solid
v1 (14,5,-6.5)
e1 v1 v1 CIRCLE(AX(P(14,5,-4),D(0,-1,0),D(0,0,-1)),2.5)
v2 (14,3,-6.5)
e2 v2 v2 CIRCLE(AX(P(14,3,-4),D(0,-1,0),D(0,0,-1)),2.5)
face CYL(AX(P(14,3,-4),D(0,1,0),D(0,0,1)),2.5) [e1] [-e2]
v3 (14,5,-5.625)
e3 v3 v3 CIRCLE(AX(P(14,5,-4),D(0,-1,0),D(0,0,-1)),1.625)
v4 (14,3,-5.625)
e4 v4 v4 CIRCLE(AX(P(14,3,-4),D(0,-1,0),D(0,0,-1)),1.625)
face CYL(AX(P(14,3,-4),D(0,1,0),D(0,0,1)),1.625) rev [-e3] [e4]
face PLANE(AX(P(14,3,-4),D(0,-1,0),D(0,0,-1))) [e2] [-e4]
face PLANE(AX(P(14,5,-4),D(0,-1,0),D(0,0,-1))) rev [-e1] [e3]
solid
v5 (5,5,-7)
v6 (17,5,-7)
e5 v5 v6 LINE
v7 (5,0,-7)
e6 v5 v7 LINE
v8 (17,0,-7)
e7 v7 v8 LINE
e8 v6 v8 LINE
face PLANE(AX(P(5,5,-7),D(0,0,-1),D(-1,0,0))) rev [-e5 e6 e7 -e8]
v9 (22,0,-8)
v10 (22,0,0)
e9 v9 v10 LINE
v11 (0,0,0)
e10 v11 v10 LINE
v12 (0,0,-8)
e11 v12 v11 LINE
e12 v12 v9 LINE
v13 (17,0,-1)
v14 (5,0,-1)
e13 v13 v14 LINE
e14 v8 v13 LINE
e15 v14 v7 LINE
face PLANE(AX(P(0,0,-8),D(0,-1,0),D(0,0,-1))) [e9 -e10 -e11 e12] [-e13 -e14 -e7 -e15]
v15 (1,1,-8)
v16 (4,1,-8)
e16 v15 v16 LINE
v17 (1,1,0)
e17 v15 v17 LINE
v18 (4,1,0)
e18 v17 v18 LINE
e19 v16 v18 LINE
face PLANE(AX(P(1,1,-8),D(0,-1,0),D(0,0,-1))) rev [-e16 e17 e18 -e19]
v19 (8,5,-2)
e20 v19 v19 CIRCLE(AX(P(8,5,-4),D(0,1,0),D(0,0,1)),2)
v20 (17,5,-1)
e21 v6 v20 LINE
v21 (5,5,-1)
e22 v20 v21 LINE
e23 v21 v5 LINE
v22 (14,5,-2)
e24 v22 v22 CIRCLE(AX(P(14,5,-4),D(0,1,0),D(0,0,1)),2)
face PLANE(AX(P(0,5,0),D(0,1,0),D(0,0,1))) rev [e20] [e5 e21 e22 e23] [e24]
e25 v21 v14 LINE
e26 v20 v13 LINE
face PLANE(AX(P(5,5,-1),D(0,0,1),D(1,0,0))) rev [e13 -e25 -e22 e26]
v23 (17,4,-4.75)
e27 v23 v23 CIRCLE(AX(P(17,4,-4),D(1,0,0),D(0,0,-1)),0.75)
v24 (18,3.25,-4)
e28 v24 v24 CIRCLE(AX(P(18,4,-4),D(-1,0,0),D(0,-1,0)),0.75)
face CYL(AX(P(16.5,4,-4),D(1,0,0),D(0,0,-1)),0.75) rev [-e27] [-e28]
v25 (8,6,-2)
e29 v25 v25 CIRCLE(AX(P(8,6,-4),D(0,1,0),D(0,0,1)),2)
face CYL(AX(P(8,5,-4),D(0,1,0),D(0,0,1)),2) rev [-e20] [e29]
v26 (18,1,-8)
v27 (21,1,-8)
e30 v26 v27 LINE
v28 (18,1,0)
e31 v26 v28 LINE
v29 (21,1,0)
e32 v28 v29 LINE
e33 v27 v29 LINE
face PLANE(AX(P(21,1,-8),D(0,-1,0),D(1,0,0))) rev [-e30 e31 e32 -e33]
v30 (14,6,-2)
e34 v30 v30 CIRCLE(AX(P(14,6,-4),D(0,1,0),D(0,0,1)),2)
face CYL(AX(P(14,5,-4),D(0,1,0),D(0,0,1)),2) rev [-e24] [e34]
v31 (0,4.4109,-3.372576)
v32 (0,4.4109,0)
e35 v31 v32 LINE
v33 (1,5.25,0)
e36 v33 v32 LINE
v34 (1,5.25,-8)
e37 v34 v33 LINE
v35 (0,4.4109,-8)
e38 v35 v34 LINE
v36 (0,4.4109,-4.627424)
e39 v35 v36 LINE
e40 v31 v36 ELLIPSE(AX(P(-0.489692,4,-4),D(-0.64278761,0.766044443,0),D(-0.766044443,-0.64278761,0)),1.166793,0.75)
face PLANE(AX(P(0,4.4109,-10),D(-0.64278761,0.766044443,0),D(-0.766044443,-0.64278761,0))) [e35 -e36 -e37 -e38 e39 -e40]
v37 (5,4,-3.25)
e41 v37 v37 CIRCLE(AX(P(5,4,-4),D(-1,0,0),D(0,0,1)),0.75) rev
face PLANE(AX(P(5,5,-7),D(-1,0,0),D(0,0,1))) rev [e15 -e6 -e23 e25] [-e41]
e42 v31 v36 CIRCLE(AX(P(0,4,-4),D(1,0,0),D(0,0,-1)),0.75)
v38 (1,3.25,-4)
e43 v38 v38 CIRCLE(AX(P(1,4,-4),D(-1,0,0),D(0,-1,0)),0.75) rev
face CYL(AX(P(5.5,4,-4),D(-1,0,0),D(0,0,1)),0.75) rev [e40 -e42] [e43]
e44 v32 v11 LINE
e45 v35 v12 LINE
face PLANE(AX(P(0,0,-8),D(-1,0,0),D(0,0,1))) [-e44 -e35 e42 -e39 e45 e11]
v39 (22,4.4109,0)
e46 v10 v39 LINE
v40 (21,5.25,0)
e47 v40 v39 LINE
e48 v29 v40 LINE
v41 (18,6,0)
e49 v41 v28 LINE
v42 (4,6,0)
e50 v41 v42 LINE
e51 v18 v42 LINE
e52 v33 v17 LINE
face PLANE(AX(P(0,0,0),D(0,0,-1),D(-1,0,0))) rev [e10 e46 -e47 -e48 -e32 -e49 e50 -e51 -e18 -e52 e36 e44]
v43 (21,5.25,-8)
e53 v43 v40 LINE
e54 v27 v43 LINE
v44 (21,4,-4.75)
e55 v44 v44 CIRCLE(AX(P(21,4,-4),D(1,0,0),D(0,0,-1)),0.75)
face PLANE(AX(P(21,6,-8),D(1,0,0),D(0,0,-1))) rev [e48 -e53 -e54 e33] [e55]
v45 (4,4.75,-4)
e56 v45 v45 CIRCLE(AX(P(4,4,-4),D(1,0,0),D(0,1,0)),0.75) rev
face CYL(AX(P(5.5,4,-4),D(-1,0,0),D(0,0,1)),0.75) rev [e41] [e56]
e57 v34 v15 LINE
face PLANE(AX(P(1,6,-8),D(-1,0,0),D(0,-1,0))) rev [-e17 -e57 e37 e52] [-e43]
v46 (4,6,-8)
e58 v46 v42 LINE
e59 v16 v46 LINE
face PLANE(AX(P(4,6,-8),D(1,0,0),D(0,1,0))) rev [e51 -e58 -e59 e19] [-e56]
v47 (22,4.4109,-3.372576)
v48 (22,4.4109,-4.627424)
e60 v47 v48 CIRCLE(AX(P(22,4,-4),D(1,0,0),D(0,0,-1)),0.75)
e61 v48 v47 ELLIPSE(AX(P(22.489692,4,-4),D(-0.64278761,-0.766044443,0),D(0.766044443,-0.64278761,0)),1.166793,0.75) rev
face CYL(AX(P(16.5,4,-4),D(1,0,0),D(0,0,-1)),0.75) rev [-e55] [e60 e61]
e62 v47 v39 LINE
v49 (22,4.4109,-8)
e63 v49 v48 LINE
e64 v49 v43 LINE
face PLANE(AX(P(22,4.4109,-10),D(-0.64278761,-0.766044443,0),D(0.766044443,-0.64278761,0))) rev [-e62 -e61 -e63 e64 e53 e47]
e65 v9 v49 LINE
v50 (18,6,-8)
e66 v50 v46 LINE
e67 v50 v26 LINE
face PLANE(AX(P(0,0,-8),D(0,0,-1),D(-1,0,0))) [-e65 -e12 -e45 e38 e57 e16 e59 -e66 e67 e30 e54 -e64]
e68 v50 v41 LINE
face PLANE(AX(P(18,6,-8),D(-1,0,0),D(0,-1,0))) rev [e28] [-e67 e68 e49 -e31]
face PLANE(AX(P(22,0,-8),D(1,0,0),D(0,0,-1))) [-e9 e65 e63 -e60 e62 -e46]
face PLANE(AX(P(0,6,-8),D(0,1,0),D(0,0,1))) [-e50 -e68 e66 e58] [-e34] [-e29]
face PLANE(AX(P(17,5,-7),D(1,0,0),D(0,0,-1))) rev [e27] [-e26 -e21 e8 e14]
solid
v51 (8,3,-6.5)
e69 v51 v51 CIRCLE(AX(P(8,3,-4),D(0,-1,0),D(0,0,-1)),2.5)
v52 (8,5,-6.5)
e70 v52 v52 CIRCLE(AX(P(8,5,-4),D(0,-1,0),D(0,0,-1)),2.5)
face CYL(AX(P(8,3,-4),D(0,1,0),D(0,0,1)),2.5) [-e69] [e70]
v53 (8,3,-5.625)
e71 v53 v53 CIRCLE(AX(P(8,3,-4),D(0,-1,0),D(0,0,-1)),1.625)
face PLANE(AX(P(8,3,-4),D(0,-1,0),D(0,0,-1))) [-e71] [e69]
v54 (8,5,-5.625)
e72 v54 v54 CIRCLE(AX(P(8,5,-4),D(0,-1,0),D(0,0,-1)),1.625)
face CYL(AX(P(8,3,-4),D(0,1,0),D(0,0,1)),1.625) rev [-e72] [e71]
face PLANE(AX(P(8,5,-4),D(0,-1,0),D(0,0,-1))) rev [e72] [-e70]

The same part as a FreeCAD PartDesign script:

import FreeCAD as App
import Part
import Sketcher
Q = App.Units.Quantity


def add_polygon(sketch, points):
    """Adds a closed chain of lines whose ends are joined by coincident constraints."""
    first, n = sketch.GeometryCount, len(points)
    for a, b in zip(points, points[1:] + points[:1]):
        sketch.addGeometry(Part.LineSegment(App.Vector(*a, 0), App.Vector(*b, 0)), False)
    for i in range(n):
        sketch.addConstraint(Sketcher.Constraint("Coincident", first + i, 2, first + (i + 1) % n, 1))

doc = App.newDocument("Part")
params = doc.addObject("Spreadsheet::Sheet", "Params")
for row, (alias, value) in enumerate([
    ("sketch1_width", "22 mm"),
    ("sketch1_height", "6 mm"),
    ("pad1_length", "8 mm"),
    ("sketch2_width", "12 mm"),
    ("sketch2_height", "6 mm"),
    ("pocket1_length", "5 mm"),
    ("sketch3_diameter", "4 mm"),
    ("pocket2_length", "1 mm"),
    ("sketch4_width", "3 mm"),
    ("sketch4_height", "5 mm"),
    ("sketch5_diameter", "1.5 mm"),
    ("pocket4_length", "5.5 mm"),
    ("sketch6_width", "1 mm"),
    ("sketch6_height", "0.75 mm"),
    ("pocket5_length", "10 mm"),
    ("sketch7_diameter", "5 mm"),
    ("sketch7_diameter2", "3.25 mm"),
    ("pad2_length", "2 mm"),
    ("sketch8_diameter", "5 mm"),
    ("sketch8_diameter2", "3.25 mm"),
    ("pad3_length", "2 mm"),
], start=1):
    params.set(f"A{row}", alias)
    params.set(f"B{row}", "=" + value)
    params.setAlias(f"B{row}", alias)

body = doc.addObject("PartDesign::Body", "Body")

sketch1 = body.newObject("Sketcher::SketchObject", "Sketch")
sketch1.AttachmentSupport = (doc.getObject("XY_Plane"), [""])
sketch1.MapMode = "FlatFace"
add_polygon(sketch1, [(0, 6), (0, 0), (22, 0), (22, 6)])
sketch1.addConstraint([
    Sketcher.Constraint("Vertical", 0),
    Sketcher.Constraint("Horizontal", 1),
    Sketcher.Constraint("Vertical", 2),
    Sketcher.Constraint("Horizontal", 3),
    Sketcher.Constraint("Coincident", 0, 2, -1, 1),
    Sketcher.Constraint("DistanceX", 1, 1, 1, 2, 22.0),
    Sketcher.Constraint("DistanceY", 0, 2, 0, 1, 6.0),
])
sketch1.setExpression("Constraints[9]", "Params.sketch1_width")
sketch1.setExpression("Constraints[10]", "Params.sketch1_height")
pad1 = body.newObject("PartDesign::Pad", "Pad")
pad1.Profile = sketch1
pad1.setExpression("Length", "Params.pad1_length")
pad1.Reversed = True

sketch2 = body.newObject("Sketcher::SketchObject", "Sketch001")
sketch2.AttachmentSupport = (doc.getObject("XZ_Plane"), [""])
sketch2.MapMode = "FlatFace"
add_polygon(sketch2, [(5, -1), (5, -7), (17, -7), (17, -1)])
sketch2.addConstraint([
    Sketcher.Constraint("Vertical", 0),
    Sketcher.Constraint("Horizontal", 1),
    Sketcher.Constraint("Vertical", 2),
    Sketcher.Constraint("Horizontal", 3),
    Sketcher.Constraint("DistanceX", 1, 1, 1, 2, 12.0),
    Sketcher.Constraint("DistanceY", 0, 2, 0, 1, 6.0),
    Sketcher.Constraint("DistanceX", -1, 1, 0, 2, 5.0),
    Sketcher.Constraint("DistanceY", 0, 2, -1, 1, 7.0),
])
sketch2.setExpression("Constraints[8]", "Params.sketch2_width")
sketch2.setExpression("Constraints[9]", "Params.sketch2_height")
pocket1 = body.newObject("PartDesign::Pocket", "Pocket")
pocket1.Profile = sketch2
pocket1.setExpression("Length", "Params.pocket1_length")

sketch3 = body.newObject("Sketcher::SketchObject", "Sketch002")
sketch3.AttachmentSupport = (doc.getObject("XZ_Plane"), [""])
sketch3.MapMode = "FlatFace"
sketch3.AttachmentOffset = App.Placement(App.Vector(0, 0, -6), App.Rotation())
sketch3.addGeometry([
    Part.Circle(App.Vector(8, -4, 0), App.Vector(0, 0, 1), 2),
    Part.Circle(App.Vector(14, -4, 0), App.Vector(0, 0, 1), 2),
], False)
sketch3.addConstraint([
    Sketcher.Constraint("Equal", 0, 1),
    Sketcher.Constraint("Horizontal", 0, 3, 1, 3),
    Sketcher.Constraint("Diameter", 0, 4.0),
    Sketcher.Constraint("DistanceX", -1, 1, 0, 3, 8.0),
    Sketcher.Constraint("DistanceY", 0, 3, -1, 1, 4.0),
    Sketcher.Constraint("DistanceX", -1, 1, 1, 3, 14.0),
])
sketch3.setExpression("Constraints[2]", "Params.sketch3_diameter")
pocket2 = body.newObject("PartDesign::Pocket", "Pocket001")
pocket2.Profile = sketch3
pocket2.setExpression("Length", "Params.pocket2_length")
pocket2.Reversed = True

sketch4 = body.newObject("Sketcher::SketchObject", "Sketch003")
sketch4.AttachmentSupport = (doc.getObject("XY_Plane"), [""])
sketch4.MapMode = "FlatFace"
add_polygon(sketch4, [(1, 6), (1, 1), (4, 1), (4, 6)])
add_polygon(sketch4, [(18, 6), (18, 1), (21, 1), (21, 6)])
sketch4.addConstraint([
    Sketcher.Constraint("Vertical", 0),
    Sketcher.Constraint("Horizontal", 1),
    Sketcher.Constraint("Vertical", 2),
    Sketcher.Constraint("Horizontal", 3),
    Sketcher.Constraint("Vertical", 4),
    Sketcher.Constraint("Horizontal", 5),
    Sketcher.Constraint("Vertical", 6),
    Sketcher.Constraint("Horizontal", 7),
    Sketcher.Constraint("Horizontal", 1, 2, 4, 2),
    Sketcher.Constraint("Horizontal", 3, 2, 6, 2),
    Sketcher.Constraint("Equal", 3, 5),
    Sketcher.Constraint("DistanceX", 1, 1, 1, 2, 3.0),
    Sketcher.Constraint("DistanceY", 0, 2, 0, 1, 5.0),
    Sketcher.Constraint("DistanceX", -1, 1, 0, 2, 1.0),
    Sketcher.Constraint("DistanceY", -1, 1, 0, 2, 1.0),
    Sketcher.Constraint("DistanceX", -1, 1, 4, 2, 18.0),
])
sketch4.setExpression("Constraints[19]", "Params.sketch4_width")
sketch4.setExpression("Constraints[20]", "Params.sketch4_height")
pocket3 = body.newObject("PartDesign::Pocket", "Pocket002")
pocket3.Profile = sketch4
pocket3.Type = "ThroughAll"

sketch5 = body.newObject("Sketcher::SketchObject", "Sketch004")
sketch5.AttachmentSupport = (doc.getObject("YZ_Plane"), [""])
sketch5.MapMode = "FlatFace"
sketch5.AttachmentOffset = App.Placement(App.Vector(0, 0, 22), App.Rotation())
sketch5.addGeometry(Part.Circle(App.Vector(4, -4, 0), App.Vector(0, 0, 1), 0.75), False)
sketch5.addConstraint([
    Sketcher.Constraint("Diameter", 0, 1.5),
    Sketcher.Constraint("DistanceX", -1, 1, 0, 3, 4.0),
    Sketcher.Constraint("DistanceY", 0, 3, -1, 1, 4.0),
])
sketch5.setExpression("Constraints[0]", "Params.sketch5_diameter")
pocket4 = body.newObject("PartDesign::Pocket", "Pocket003")
pocket4.Profile = sketch5
pocket4.setExpression("Length", "Params.pocket4_length")
doc.recompute()

datumplane = body.newObject("PartDesign::Plane", "DatumPlane")
datumplane.AttachmentSupport = (doc.getObject("YZ_Plane"), [""])
datumplane.MapMode = "FlatFace"
datumplane.AttachmentOffset = App.Placement(App.Vector(0, 0, 11), App.Rotation())
mirrored = body.newObject("PartDesign::Mirrored", "Mirrored")
mirrored.Originals = [pocket4]
mirrored.MirrorPlane = (datumplane, [""])
body.Tip = mirrored

sketch6 = body.newObject("Sketcher::SketchObject", "Sketch005")
sketch6.AttachmentSupport = (doc.getObject("XY_Plane"), [""])
sketch6.MapMode = "FlatFace"
add_polygon(sketch6, [(22, 6), (21, 6), (21, 5.25), (22, 4.4109)])
sketch6.addConstraint([
    Sketcher.Constraint("Horizontal", 0),
    Sketcher.Constraint("Vertical", 1),
    Sketcher.Constraint("Vertical", 3),
    Sketcher.Constraint("DistanceX", 0, 2, 0, 1, 1.0),
    Sketcher.Constraint("Angle", 2, Q("-40 deg")),
    Sketcher.Constraint("DistanceX", -1, 1, 0, 2, 21.0),
    Sketcher.Constraint("DistanceY", -1, 1, 0, 2, 6.0),
    Sketcher.Constraint("DistanceY", 1, 2, 1, 1, 0.75),
])
sketch6.setExpression("Constraints[7]", "Params.sketch6_width")
sketch6.setExpression("Constraints[11]", "Params.sketch6_height")
pocket5 = body.newObject("PartDesign::Pocket", "Pocket004")
pocket5.Profile = sketch6
pocket5.setExpression("Length", "Params.pocket5_length")
doc.recompute()

datumplane2 = body.newObject("PartDesign::Plane", "DatumPlane001")
datumplane2.AttachmentSupport = (doc.getObject("YZ_Plane"), [""])
datumplane2.MapMode = "FlatFace"
datumplane2.AttachmentOffset = App.Placement(App.Vector(0, 0, 11), App.Rotation())
mirrored2 = body.newObject("PartDesign::Mirrored", "Mirrored001")
mirrored2.Originals = [pocket5]
mirrored2.MirrorPlane = (datumplane2, [""])
body.Tip = mirrored2
body2 = doc.addObject("PartDesign::Body", "Body001")

sketch7 = body2.newObject("Sketcher::SketchObject", "Sketch006")
sketch7.AttachmentSupport = (doc.getObject("XZ_Plane001"), [""])
sketch7.MapMode = "FlatFace"
sketch7.AttachmentOffset = App.Placement(App.Vector(0, 0, -5), App.Rotation())
sketch7.addGeometry([
    Part.Circle(App.Vector(8, -4, 0), App.Vector(0, 0, 1), 2.5),
    Part.Circle(App.Vector(8, -4, 0), App.Vector(0, 0, 1), 1.625),
], False)
sketch7.addConstraint([
    Sketcher.Constraint("Coincident", 1, 3, 0, 3),
    Sketcher.Constraint("Diameter", 0, 5.0),
    Sketcher.Constraint("Diameter", 1, 3.25),
    Sketcher.Constraint("DistanceX", -1, 1, 0, 3, 8.0),
    Sketcher.Constraint("DistanceY", 0, 3, -1, 1, 4.0),
])
sketch7.setExpression("Constraints[1]", "Params.sketch7_diameter")
sketch7.setExpression("Constraints[2]", "Params.sketch7_diameter2")
pad2 = body2.newObject("PartDesign::Pad", "Pad001")
pad2.Profile = sketch7
pad2.setExpression("Length", "Params.pad2_length")
body3 = doc.addObject("PartDesign::Body", "Body002")

sketch8 = body3.newObject("Sketcher::SketchObject", "Sketch007")
sketch8.AttachmentSupport = (doc.getObject("XZ_Plane002"), [""])
sketch8.MapMode = "FlatFace"
sketch8.AttachmentOffset = App.Placement(App.Vector(0, 0, -5), App.Rotation())
sketch8.addGeometry([
    Part.Circle(App.Vector(14, -4, 0), App.Vector(0, 0, 1), 2.5),
    Part.Circle(App.Vector(14, -4, 0), App.Vector(0, 0, 1), 1.625),
], False)
sketch8.addConstraint([
    Sketcher.Constraint("Coincident", 1, 3, 0, 3),
    Sketcher.Constraint("Diameter", 0, 5.0),
    Sketcher.Constraint("Diameter", 1, 3.25),
    Sketcher.Constraint("DistanceX", -1, 1, 0, 3, 14.0),
    Sketcher.Constraint("DistanceY", 0, 3, -1, 1, 4.0),
])
sketch8.setExpression("Constraints[1]", "Params.sketch8_diameter")
sketch8.setExpression("Constraints[2]", "Params.sketch8_diameter2")
pad3 = body3.newObject("PartDesign::Pad", "Pad002")
pad3.Profile = sketch8
pad3.setExpression("Length", "Params.pad3_length")

doc.recompute()
